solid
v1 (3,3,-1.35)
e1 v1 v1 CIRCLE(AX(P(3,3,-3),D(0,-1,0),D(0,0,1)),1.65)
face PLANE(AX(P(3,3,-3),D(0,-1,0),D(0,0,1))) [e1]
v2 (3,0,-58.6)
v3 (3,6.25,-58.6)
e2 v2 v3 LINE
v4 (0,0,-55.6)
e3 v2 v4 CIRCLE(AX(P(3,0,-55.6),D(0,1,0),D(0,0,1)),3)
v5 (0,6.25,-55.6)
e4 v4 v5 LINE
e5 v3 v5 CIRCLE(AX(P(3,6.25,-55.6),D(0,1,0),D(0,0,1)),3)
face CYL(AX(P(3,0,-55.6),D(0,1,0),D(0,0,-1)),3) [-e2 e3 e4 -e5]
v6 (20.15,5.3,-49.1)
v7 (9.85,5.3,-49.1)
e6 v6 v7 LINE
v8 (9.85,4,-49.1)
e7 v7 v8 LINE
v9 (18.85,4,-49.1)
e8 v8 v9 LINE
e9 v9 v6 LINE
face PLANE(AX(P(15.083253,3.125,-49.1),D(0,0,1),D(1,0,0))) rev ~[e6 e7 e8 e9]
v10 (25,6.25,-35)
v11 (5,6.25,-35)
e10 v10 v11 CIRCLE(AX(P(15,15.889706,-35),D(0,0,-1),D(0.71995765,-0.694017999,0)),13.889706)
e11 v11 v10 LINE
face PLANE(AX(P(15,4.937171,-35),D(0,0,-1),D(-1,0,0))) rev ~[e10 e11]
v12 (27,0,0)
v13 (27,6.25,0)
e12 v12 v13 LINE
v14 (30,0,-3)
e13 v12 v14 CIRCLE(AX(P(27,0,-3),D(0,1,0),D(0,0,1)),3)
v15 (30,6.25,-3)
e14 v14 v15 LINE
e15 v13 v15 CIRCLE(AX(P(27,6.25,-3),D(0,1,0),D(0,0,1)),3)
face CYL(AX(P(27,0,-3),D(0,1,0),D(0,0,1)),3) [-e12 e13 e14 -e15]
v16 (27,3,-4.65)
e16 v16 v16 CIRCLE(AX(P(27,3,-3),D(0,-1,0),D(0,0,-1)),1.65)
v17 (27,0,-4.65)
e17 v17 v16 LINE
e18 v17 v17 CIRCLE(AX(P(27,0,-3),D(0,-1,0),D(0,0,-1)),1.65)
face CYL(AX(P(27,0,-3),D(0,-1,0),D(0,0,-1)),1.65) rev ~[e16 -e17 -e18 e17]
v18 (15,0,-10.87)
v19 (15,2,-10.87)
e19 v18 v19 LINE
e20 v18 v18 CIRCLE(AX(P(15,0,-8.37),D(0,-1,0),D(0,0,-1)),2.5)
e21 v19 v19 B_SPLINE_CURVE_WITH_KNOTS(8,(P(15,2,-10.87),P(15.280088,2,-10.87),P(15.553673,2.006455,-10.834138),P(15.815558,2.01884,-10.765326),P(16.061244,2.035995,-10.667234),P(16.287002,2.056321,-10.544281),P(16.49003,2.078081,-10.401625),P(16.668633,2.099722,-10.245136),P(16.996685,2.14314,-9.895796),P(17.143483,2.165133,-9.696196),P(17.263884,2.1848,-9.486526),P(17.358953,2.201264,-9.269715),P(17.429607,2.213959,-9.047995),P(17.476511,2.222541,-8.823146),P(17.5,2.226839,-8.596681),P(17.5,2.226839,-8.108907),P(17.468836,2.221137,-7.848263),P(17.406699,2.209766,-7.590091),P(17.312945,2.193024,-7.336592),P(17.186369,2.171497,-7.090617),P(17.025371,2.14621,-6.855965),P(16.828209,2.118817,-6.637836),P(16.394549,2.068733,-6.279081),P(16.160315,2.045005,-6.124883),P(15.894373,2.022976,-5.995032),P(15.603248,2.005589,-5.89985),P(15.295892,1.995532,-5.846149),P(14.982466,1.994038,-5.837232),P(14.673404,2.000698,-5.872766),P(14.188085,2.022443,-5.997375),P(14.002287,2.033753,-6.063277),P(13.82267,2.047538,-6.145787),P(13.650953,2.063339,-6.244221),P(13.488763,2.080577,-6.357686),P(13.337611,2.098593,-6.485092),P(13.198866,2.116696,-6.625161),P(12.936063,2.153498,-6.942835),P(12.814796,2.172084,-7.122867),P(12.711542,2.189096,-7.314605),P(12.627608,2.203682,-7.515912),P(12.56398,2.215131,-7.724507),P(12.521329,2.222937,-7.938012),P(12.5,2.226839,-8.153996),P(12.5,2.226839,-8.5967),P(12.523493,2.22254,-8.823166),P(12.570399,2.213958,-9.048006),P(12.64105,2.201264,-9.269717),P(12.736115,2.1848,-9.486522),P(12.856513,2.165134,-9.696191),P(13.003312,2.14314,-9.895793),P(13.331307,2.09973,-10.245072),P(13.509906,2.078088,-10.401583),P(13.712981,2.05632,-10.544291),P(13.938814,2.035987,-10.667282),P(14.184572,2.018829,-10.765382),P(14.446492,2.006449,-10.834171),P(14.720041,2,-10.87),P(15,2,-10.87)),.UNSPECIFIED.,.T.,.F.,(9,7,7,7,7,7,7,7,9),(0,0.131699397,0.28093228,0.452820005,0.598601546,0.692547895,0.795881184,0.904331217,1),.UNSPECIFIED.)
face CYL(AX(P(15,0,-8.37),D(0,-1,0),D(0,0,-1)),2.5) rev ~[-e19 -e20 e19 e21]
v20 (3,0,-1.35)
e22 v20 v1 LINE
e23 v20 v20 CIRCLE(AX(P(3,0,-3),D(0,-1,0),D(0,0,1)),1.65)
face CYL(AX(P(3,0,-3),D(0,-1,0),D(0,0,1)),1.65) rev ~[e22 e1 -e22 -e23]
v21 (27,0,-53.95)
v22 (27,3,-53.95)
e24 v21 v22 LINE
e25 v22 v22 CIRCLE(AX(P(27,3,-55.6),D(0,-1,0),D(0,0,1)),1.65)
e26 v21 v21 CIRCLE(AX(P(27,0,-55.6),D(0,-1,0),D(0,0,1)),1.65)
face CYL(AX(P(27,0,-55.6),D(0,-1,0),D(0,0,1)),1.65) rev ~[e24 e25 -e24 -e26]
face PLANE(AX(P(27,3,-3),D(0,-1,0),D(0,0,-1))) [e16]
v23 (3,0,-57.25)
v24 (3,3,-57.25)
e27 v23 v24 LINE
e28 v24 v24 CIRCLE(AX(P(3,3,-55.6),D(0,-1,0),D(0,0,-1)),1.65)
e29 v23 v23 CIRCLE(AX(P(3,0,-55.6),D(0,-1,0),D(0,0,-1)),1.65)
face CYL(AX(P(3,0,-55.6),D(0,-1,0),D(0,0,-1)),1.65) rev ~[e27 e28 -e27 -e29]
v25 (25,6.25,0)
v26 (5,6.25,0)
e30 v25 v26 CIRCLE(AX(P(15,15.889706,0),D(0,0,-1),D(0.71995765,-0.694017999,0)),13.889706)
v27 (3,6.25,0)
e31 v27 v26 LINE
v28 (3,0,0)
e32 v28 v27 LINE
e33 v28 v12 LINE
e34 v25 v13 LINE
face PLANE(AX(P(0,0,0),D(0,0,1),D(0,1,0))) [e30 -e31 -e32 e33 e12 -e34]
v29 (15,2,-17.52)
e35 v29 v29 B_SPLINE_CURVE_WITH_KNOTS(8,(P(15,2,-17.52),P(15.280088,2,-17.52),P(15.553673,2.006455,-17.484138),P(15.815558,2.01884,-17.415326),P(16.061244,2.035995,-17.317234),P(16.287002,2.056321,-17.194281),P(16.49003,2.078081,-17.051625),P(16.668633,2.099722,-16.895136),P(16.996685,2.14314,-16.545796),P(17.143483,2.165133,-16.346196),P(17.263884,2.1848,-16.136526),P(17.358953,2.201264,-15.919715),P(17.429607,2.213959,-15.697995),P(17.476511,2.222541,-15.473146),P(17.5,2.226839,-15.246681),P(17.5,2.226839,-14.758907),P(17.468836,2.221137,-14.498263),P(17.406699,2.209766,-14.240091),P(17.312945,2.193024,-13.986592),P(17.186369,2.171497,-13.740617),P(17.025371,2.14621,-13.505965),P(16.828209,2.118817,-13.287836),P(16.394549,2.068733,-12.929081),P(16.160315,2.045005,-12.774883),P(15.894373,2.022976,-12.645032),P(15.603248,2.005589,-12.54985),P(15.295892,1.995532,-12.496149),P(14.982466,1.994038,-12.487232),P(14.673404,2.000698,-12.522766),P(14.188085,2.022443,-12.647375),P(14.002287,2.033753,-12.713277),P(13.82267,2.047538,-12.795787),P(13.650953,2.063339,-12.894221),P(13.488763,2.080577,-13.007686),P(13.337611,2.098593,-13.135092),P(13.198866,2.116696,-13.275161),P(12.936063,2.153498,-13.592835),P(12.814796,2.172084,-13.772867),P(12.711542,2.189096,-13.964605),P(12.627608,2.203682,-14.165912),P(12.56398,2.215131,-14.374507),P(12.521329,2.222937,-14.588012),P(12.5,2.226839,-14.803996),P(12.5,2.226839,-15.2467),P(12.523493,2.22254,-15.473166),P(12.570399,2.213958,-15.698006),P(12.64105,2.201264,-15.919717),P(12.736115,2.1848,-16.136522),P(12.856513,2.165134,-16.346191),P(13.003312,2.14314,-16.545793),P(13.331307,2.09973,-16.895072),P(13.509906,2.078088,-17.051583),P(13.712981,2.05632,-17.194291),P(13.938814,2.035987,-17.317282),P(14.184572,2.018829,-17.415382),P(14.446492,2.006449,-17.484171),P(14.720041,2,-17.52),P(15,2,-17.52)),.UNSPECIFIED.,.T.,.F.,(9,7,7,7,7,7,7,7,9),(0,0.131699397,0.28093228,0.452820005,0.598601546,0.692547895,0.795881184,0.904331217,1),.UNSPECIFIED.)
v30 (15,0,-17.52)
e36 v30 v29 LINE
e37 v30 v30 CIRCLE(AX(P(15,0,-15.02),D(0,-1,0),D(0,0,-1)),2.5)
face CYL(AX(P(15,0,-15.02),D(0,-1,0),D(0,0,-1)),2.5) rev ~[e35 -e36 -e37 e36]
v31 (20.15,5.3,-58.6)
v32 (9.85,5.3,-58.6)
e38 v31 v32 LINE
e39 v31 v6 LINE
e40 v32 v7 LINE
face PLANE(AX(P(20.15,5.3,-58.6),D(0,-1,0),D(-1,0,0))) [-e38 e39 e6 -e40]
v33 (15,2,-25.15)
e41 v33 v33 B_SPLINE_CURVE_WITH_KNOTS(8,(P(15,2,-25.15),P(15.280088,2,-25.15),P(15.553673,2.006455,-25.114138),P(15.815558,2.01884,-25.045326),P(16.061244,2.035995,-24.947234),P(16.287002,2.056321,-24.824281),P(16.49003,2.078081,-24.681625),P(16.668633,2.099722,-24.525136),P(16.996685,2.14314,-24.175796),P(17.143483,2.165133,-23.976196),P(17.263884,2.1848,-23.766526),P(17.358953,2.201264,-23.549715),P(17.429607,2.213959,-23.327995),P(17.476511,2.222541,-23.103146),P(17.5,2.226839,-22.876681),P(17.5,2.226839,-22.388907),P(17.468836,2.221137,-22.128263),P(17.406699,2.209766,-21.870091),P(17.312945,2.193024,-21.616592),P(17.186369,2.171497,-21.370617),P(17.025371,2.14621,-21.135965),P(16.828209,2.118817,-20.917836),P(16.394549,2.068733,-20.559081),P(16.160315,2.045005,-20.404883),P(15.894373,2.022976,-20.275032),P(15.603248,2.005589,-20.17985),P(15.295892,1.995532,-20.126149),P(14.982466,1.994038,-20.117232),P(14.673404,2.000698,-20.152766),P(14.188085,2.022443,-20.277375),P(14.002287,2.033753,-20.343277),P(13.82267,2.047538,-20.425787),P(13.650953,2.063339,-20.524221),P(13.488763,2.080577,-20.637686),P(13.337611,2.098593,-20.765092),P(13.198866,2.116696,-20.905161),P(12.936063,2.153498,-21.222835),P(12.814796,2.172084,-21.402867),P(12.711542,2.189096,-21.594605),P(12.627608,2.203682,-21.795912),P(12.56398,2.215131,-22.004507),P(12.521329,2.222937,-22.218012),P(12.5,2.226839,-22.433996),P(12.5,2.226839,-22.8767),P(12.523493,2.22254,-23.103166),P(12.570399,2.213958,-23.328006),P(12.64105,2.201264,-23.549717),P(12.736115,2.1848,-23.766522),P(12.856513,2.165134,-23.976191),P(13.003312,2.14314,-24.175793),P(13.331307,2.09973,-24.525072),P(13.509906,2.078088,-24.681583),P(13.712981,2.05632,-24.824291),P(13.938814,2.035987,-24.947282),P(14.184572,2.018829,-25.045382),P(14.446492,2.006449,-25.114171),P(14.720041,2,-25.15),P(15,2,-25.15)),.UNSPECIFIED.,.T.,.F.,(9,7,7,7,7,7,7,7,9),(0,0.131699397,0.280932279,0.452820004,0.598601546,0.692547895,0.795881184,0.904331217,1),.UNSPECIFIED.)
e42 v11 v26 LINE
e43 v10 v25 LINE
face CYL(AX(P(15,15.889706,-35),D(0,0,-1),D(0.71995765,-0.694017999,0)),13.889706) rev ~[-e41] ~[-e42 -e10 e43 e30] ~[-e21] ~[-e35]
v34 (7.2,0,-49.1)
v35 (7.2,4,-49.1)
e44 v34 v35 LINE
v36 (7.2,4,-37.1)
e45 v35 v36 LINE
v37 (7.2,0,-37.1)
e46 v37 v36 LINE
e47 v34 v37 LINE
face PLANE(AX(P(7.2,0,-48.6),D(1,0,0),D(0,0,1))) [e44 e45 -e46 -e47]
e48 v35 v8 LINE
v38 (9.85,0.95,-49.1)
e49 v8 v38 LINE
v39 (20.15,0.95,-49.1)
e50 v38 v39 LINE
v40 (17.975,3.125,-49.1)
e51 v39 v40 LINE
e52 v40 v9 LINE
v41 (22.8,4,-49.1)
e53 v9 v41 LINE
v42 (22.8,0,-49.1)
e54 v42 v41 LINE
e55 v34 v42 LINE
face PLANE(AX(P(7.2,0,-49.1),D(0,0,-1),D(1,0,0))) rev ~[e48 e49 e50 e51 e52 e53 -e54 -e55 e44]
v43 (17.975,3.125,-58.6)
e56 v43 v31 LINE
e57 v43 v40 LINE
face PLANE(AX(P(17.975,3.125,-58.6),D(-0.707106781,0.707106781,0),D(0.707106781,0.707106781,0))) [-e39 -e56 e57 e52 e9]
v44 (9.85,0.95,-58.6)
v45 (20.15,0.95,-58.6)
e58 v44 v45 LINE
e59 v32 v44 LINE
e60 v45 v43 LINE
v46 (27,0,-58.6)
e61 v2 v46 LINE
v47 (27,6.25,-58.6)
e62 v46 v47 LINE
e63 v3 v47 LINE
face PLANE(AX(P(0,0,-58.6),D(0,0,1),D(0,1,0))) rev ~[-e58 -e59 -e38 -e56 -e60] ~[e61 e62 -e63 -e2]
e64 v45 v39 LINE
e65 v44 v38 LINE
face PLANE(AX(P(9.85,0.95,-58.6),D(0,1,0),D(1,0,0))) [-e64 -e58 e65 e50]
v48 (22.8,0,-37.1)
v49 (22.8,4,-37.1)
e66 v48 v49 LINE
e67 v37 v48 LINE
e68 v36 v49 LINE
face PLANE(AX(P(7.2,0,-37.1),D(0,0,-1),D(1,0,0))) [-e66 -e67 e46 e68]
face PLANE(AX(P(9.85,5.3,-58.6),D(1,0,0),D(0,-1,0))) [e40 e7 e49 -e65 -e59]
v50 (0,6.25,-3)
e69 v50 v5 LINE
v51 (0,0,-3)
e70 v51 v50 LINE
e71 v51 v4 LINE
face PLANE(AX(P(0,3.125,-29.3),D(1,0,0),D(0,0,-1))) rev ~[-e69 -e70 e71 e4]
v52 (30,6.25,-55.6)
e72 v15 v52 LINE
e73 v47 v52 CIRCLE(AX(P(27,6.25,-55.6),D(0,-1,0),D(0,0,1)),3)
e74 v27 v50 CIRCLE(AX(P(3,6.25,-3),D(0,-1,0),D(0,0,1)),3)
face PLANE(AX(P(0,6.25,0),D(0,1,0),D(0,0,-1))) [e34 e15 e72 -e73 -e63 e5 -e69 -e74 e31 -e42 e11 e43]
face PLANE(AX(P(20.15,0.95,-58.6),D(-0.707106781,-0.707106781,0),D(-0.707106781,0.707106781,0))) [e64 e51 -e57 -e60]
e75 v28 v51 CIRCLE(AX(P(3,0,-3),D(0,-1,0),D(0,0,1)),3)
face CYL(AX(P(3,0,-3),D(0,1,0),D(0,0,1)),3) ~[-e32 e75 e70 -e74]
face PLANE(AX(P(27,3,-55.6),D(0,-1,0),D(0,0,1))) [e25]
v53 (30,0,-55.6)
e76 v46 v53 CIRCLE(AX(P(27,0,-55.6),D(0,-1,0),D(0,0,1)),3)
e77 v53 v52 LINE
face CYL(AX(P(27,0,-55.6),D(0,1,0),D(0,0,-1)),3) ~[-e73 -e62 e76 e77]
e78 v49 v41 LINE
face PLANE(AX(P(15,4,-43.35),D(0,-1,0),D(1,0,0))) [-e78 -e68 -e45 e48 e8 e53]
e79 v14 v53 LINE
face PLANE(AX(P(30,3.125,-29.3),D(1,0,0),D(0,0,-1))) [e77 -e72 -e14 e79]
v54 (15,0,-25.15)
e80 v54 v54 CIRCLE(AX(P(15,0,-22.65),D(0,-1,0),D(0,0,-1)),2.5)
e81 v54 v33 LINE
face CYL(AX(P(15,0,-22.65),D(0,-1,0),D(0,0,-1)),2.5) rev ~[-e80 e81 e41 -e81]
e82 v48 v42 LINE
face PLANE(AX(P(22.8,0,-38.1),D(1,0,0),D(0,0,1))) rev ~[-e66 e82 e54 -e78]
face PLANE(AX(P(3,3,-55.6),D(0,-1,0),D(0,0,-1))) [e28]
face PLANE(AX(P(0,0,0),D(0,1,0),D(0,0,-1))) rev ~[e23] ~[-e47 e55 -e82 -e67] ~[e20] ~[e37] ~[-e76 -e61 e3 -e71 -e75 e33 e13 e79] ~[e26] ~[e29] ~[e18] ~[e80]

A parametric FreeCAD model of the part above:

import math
import FreeCAD as App
import Part
import Sketcher
Q = App.Units.Quantity


def edges_at(feature, points):
    """Names of the edges that pass closest to the given points."""
    edges = feature.Shape.Edges
    near = lambda p: min(range(len(edges)), key=lambda i: edges[i].distToShape(Part.Vertex(*p))[0])
    return sorted({f"Edge{near(p) + 1}" for p in points})

doc = App.newDocument("Part")
params = doc.addObject("Spreadsheet::Sheet", "Params")
for row, (alias, value) in enumerate([
    ("sketch1_height", "58.6 mm"),
    ("sketch1_width", "6.25 mm"),
    ("pad1_length", "30 mm"),
    ("sketch2_width", "20 mm"),
    ("pocket1_length", "67.128833 mm"),
    ("pocket1_length2", "35 mm"),
    ("sketch3_diameter", "5 mm"),
    ("sketch3_width", "15.6 mm"),
    ("sketch3_height", "10.5 mm"),
    ("pocket2_length", "4 mm"),
    ("sketch4_width", "10.3 mm"),
    ("sketch4_height", "4.35 mm"),
    ("pocket3_length", "9.5 mm"),
    ("sketch5_height", "1 mm"),
    ("sketch5_width", "15.6 mm"),
    ("sketch5_height2", "0.5 mm"),
    ("pocket4_length", "4 mm"),
    ("fillet_radius", "3 mm"),
    ("sketch6_diameter", "3.3 mm"),
    ("pocket5_length", "3 mm"),
], start=1):
    params.set(f"A{row}", alias)
    params.set(f"B{row}", "=" + value)
    params.setAlias(f"B{row}", alias)

body = doc.addObject("PartDesign::Body", "Body")

sketch1 = body.newObject("Sketcher::SketchObject", "Sketch")
sketch1.AttachmentSupport = (doc.getObject("YZ_Plane"), [""])
sketch1.MapMode = "FlatFace"
sketch1.addGeometry([
    Part.LineSegment(App.Vector(6.25, 0, 0), App.Vector(0, 0, 0)),
    Part.LineSegment(App.Vector(0, 0, 0), App.Vector(0, -58.6, 0)),
    Part.LineSegment(App.Vector(0, -58.6, 0), App.Vector(6.25, -58.6, 0)),
    Part.LineSegment(App.Vector(6.25, -58.6, 0), App.Vector(6.25, 0, 0)),
], False)
sketch1.addConstraint([
    Sketcher.Constraint("Coincident", 0, 2, 1, 1),
    Sketcher.Constraint("Coincident", 1, 2, 2, 1),
    Sketcher.Constraint("Coincident", 2, 2, 3, 1),
    Sketcher.Constraint("Coincident", 3, 2, 0, 1),
    Sketcher.Constraint("Horizontal", 0),
    Sketcher.Constraint("Vertical", 1),
    Sketcher.Constraint("Horizontal", 2),
    Sketcher.Constraint("Vertical", 3),
    Sketcher.Constraint("Coincident", 0, 2, -1, 1),
    Sketcher.Constraint("DistanceY", 1, 2, 1, 1, Q("58.6 mm")),
    Sketcher.Constraint("DistanceX", 0, 2, 0, 1, Q("6.25 mm")),
])
sketch1.setExpression("Constraints[9]", "Params.sketch1_height")
sketch1.setExpression("Constraints[10]", "Params.sketch1_width")
pad1 = body.newObject("PartDesign::Pad", "Pad")
pad1.Profile = sketch1
pad1.setExpression("Length", "Params.pad1_length")

sketch2 = body.newObject("Sketcher::SketchObject", "Sketch001")
sketch2.AttachmentSupport = (doc.getObject("XY_Plane"), [""])
sketch2.MapMode = "FlatFace"
sketch2.addGeometry([
    Part.LineSegment(App.Vector(25, 6.25, 0), App.Vector(5, 6.25, 0)),
    Part.ArcOfCircle(Part.Circle(App.Vector(15, 15.889706, 0), App.Vector(0, 0, 1), 13.889706), math.radians(-136.050984), math.radians(-43.949016)),
], False)
sketch2.addConstraint([
    Sketcher.Constraint("Coincident", 0, 1, 1, 2),
    Sketcher.Constraint("Coincident", 1, 1, 0, 2),
    Sketcher.Constraint("Horizontal", 0),
    Sketcher.Constraint("DistanceX", 0, 2, 0, 1, Q("20 mm")),
    Sketcher.Constraint("DistanceX", -1, 1, 1, 3, Q("15 mm")),
    Sketcher.Constraint("DistanceY", -1, 1, 0, 1, Q("6.25 mm")),
    Sketcher.Constraint("Radius", 1, Q("13.889706 mm")),
])
sketch2.setExpression("Constraints[3]", "Params.sketch2_width")
pocket1 = body.newObject("PartDesign::Pocket", "Pocket")
pocket1.Profile = sketch2
pocket1.Type = "TwoLengths"
pocket1.setExpression("Length", "Params.pocket1_length")
pocket1.setExpression("Length2", "Params.pocket1_length2")
pocket1.Reversed = True

sketch3 = body.newObject("Sketcher::SketchObject", "Sketch002")
sketch3.AttachmentSupport = (doc.getObject("XZ_Plane"), [""])
sketch3.MapMode = "FlatFace"
sketch3.addGeometry([
    Part.Circle(App.Vector(15, -8.37, 0), App.Vector(0, 0, 1), 2.5),
    Part.Circle(App.Vector(15, -15.02, 0), App.Vector(0, 0, 1), 2.5),
    Part.Circle(App.Vector(15, -22.65, 0), App.Vector(0, 0, 1), 2.5),
    Part.LineSegment(App.Vector(7.2, -38.1, 0), App.Vector(7.2, -48.6, 0)),
    Part.LineSegment(App.Vector(7.2, -48.6, 0), App.Vector(22.8, -48.6, 0)),
    Part.LineSegment(App.Vector(22.8, -48.6, 0), App.Vector(22.8, -38.1, 0)),
    Part.LineSegment(App.Vector(22.8, -38.1, 0), App.Vector(7.2, -38.1, 0)),
], False)
sketch3.addConstraint([
    Sketcher.Constraint("Coincident", 3, 2, 4, 1),
    Sketcher.Constraint("Coincident", 4, 2, 5, 1),
    Sketcher.Constraint("Coincident", 5, 2, 6, 1),
    Sketcher.Constraint("Coincident", 6, 2, 3, 1),
    Sketcher.Constraint("Vertical", 3),
    Sketcher.Constraint("Horizontal", 4),
    Sketcher.Constraint("Vertical", 5),
    Sketcher.Constraint("Horizontal", 6),
    Sketcher.Constraint("Equal", 0, 1),
    Sketcher.Constraint("Equal", 1, 2),
    Sketcher.Constraint("Vertical", 0, 3, 1, 3),
    Sketcher.Constraint("Vertical", 1, 3, 2, 3),
    Sketcher.Constraint("Diameter", 0, Q("5 mm")),
    Sketcher.Constraint("DistanceX", 4, 1, 4, 2, Q("15.6 mm")),
    Sketcher.Constraint("DistanceY", 3, 2, 3, 1, Q("10.5 mm")),
    Sketcher.Constraint("DistanceX", -1, 1, 0, 3, Q("15 mm")),
    Sketcher.Constraint("DistanceX", -1, 1, 3, 2, Q("7.2 mm")),
    Sketcher.Constraint("DistanceY", 3, 2, -1, 1, Q("48.6 mm")),
    Sketcher.Constraint("DistanceY", 0, 3, -1, 1, Q("8.37 mm")),
    Sketcher.Constraint("DistanceY", 1, 3, -1, 1, Q("15.02 mm")),
    Sketcher.Constraint("DistanceY", 2, 3, -1, 1, Q("22.65 mm")),
])
sketch3.setExpression("Constraints[12]", "Params.sketch3_diameter")
sketch3.setExpression("Constraints[13]", "Params.sketch3_width")
sketch3.setExpression("Constraints[14]", "Params.sketch3_height")
pocket2 = body.newObject("PartDesign::Pocket", "Pocket001")
pocket2.Profile = sketch3
pocket2.setExpression("Length", "Params.pocket2_length")

sketch4 = body.newObject("Sketcher::SketchObject", "Sketch003")
sketch4.AttachmentSupport = (doc.getObject("XY_Plane"), [""])
sketch4.MapMode = "FlatFace"
sketch4.AttachmentOffset = App.Placement(App.Vector(0, 0, -58.6), App.Rotation())
sketch4.addGeometry([
    Part.LineSegment(App.Vector(20.15, 0.95, 0), App.Vector(9.85, 0.95, 0)),
    Part.LineSegment(App.Vector(9.85, 0.95, 0), App.Vector(9.85, 5.3, 0)),
    Part.LineSegment(App.Vector(9.85, 5.3, 0), App.Vector(20.15, 5.3, 0)),
    Part.LineSegment(App.Vector(20.15, 5.3, 0), App.Vector(17.975, 3.125, 0)),
    Part.LineSegment(App.Vector(17.975, 3.125, 0), App.Vector(20.15, 0.95, 0)),
], False)
sketch4.addConstraint([
    Sketcher.Constraint("Coincident", 0, 2, 1, 1),
    Sketcher.Constraint("Coincident", 1, 2, 2, 1),
    Sketcher.Constraint("Coincident", 2, 2, 3, 1),
    Sketcher.Constraint("Coincident", 3, 2, 4, 1),
    Sketcher.Constraint("Coincident", 4, 2, 0, 1),
    Sketcher.Constraint("Horizontal", 0),
    Sketcher.Constraint("Vertical", 1),
    Sketcher.Constraint("Horizontal", 2),
    Sketcher.Constraint("Perpendicular", 3, 4),
    Sketcher.Constraint("Vertical", 2, 2, 4, 2),
    Sketcher.Constraint("Equal", 3, 4),
    Sketcher.Constraint("DistanceX", 0, 2, 0, 1, Q("10.3 mm")),
    Sketcher.Constraint("DistanceY", 1, 1, 1, 2, Q("4.35 mm")),
    Sketcher.Constraint("DistanceY", -1, 1, 1, 2, Q("5.3 mm")),
    Sketcher.Constraint("DistanceX", -1, 1, 0, 2, Q("9.85 mm")),
])
sketch4.setExpression("Constraints[11]", "Params.sketch4_width")
sketch4.setExpression("Constraints[12]", "Params.sketch4_height")
pocket3 = body.newObject("PartDesign::Pocket", "Pocket002")
pocket3.Profile = sketch4
pocket3.setExpression("Length", "Params.pocket3_length")
pocket3.Reversed = True

sketch5 = body.newObject("Sketcher::SketchObject", "Sketch004")
sketch5.AttachmentSupport = (doc.getObject("XZ_Plane"), [""])
sketch5.MapMode = "FlatFace"
sketch5.addGeometry([
    Part.LineSegment(App.Vector(7.2, -37.1, 0), App.Vector(7.2, -38.1, 0)),
    Part.LineSegment(App.Vector(7.2, -38.1, 0), App.Vector(22.8, -38.1, 0)),
    Part.LineSegment(App.Vector(22.8, -38.1, 0), App.Vector(22.8, -37.1, 0)),
    Part.LineSegment(App.Vector(22.8, -37.1, 0), App.Vector(7.2, -37.1, 0)),
    Part.LineSegment(App.Vector(7.2, -48.6, 0), App.Vector(7.2, -49.1, 0)),
    Part.LineSegment(App.Vector(7.2, -49.1, 0), App.Vector(22.8, -49.1, 0)),
    Part.LineSegment(App.Vector(22.8, -49.1, 0), App.Vector(22.8, -48.6, 0)),
    Part.LineSegment(App.Vector(22.8, -48.6, 0), App.Vector(7.2, -48.6, 0)),
], False)
sketch5.addConstraint([
    Sketcher.Constraint("Coincident", 0, 2, 1, 1),
    Sketcher.Constraint("Coincident", 1, 2, 2, 1),
    Sketcher.Constraint("Coincident", 2, 2, 3, 1),
    Sketcher.Constraint("Coincident", 3, 2, 0, 1),
    Sketcher.Constraint("Coincident", 4, 2, 5, 1),
    Sketcher.Constraint("Coincident", 5, 2, 6, 1),
    Sketcher.Constraint("Coincident", 6, 2, 7, 1),
    Sketcher.Constraint("Coincident", 7, 2, 4, 1),
    Sketcher.Constraint("Vertical", 0),
    Sketcher.Constraint("Horizontal", 1),
    Sketcher.Constraint("Vertical", 2),
    Sketcher.Constraint("Horizontal", 3),
    Sketcher.Constraint("Vertical", 4),
    Sketcher.Constraint("Horizontal", 5),
    Sketcher.Constraint("Vertical", 6),
    Sketcher.Constraint("Horizontal", 7),
    Sketcher.Constraint("Vertical", 3, 2, 4, 2),
    Sketcher.Constraint("Vertical", 2, 2, 5, 2),
    Sketcher.Constraint("DistanceY", 0, 2, 0, 1, Q("1 mm")),
    Sketcher.Constraint("DistanceX", 1, 1, 1, 2, Q("15.6 mm")),
    Sketcher.Constraint("DistanceY", 4, 2, 4, 1, Q("0.5 mm")),
    Sketcher.Constraint("DistanceY", 4, 2, 0, 2, Q("11 mm")),
    Sketcher.Constraint("DistanceX", -1, 1, 0, 2, Q("7.2 mm")),
    Sketcher.Constraint("DistanceY", 0, 2, -1, 1, Q("38.1 mm")),
])
sketch5.setExpression("Constraints[18]", "Params.sketch5_height")
sketch5.setExpression("Constraints[19]", "Params.sketch5_width")
sketch5.setExpression("Constraints[20]", "Params.sketch5_height2")
pocket4 = body.newObject("PartDesign::Pocket", "Pocket003")
pocket4.Profile = sketch5
pocket4.setExpression("Length", "Params.pocket4_length")
doc.recompute()

fillet = body.newObject("PartDesign::Fillet", "Fillet")
fillet.Base = (pocket4, edges_at(pocket4, [
    (30, 3.125, -58.6),
    (30, 3.125, 0),
    (0, 3.125, -58.6),
    (0, 3.125, 0),
]))
fillet.setExpression("Radius", "Params.fillet_radius")

sketch6 = body.newObject("Sketcher::SketchObject", "Sketch005")
sketch6.AttachmentSupport = (doc.getObject("XZ_Plane"), [""])
sketch6.MapMode = "FlatFace"
sketch6.addGeometry([
    Part.Circle(App.Vector(3, -55.6, 0), App.Vector(0, 0, 1), 1.65),
    Part.Circle(App.Vector(27, -55.6, 0), App.Vector(0, 0, 1), 1.65),
    Part.Circle(App.Vector(27, -3, 0), App.Vector(0, 0, 1), 1.65),
    Part.Circle(App.Vector(3, -3, 0), App.Vector(0, 0, 1), 1.65),
], False)
sketch6.addConstraint([
    Sketcher.Constraint("Equal", 0, 1),
    Sketcher.Constraint("Equal", 1, 2),
    Sketcher.Constraint("Equal", 2, 3),
    Sketcher.Constraint("Horizontal", 0, 3, 1, 3),
    Sketcher.Constraint("Horizontal", 2, 3, 3, 3),
    Sketcher.Constraint("Vertical", 1, 3, 2, 3),
    Sketcher.Constraint("Vertical", 0, 3, 3, 3),
    Sketcher.Constraint("Diameter", 0, Q("3.3 mm")),
    Sketcher.Constraint("DistanceX", -1, 1, 0, 3, Q("3 mm")),
    Sketcher.Constraint("DistanceX", -1, 1, 1, 3, Q("27 mm")),
    Sketcher.Constraint("DistanceY", 2, 3, -1, 1, Q("3 mm")),
    Sketcher.Constraint("DistanceY", 0, 3, -1, 1, Q("55.6 mm")),
])
sketch6.setExpression("Constraints[7]", "Params.sketch6_diameter")
pocket5 = body.newObject("PartDesign::Pocket", "Pocket004")
pocket5.Profile = sketch6
pocket5.setExpression("Length", "Params.pocket5_length")

doc.recompute()
